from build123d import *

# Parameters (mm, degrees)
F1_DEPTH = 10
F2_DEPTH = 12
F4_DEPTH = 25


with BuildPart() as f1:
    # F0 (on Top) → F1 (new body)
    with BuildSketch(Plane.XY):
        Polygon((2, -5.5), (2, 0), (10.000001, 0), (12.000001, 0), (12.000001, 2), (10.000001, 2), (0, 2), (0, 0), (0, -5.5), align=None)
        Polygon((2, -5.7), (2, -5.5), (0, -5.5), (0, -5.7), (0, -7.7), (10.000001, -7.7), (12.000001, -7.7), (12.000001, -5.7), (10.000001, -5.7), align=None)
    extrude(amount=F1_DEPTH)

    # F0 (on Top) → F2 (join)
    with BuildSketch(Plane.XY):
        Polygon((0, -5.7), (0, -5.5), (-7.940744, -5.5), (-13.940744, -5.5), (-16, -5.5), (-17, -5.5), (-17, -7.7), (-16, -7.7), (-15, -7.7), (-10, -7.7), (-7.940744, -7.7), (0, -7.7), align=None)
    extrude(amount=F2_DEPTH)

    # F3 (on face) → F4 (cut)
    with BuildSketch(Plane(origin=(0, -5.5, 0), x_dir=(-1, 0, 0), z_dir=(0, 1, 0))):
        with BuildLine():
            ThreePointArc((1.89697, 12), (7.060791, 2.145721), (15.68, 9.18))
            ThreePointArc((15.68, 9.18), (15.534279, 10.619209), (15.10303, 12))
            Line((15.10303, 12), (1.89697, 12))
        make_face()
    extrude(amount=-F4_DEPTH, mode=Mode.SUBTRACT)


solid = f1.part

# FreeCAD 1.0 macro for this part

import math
import FreeCAD as App
import Part
import Sketcher

V = App.Vector
Q = App.Units.Quantity

doc = App.newDocument("Part")
body = doc.addObject("PartDesign::Body", "Body")

sketch1 = body.newObject("Sketcher::SketchObject", "Sketch")
sketch1.AttachmentSupport = (doc.getObject("XY_Plane"), [""])
sketch1.MapMode = "FlatFace"
sketch1.addGeometry(Part.LineSegment(V(2, 0, 0), V(12.000001, 0, 0)), False)
sketch1.addGeometry(Part.LineSegment(V(12.000001, 0, 0), V(12.000001, 2, 0)), False)
sketch1.addGeometry(Part.LineSegment(V(12.000001, 2, 0), V(0, 2, 0)), False)
sketch1.addGeometry(Part.LineSegment(V(0, 2, 0), V(0, -7.7, 0)), False)
sketch1.addGeometry(Part.LineSegment(V(0, -7.7, 0), V(12.000001, -7.7, 0)), False)
sketch1.addGeometry(Part.LineSegment(V(12.000001, -7.7, 0), V(12.000001, -5.7, 0)), False)
sketch1.addGeometry(Part.LineSegment(V(12.000001, -5.7, 0), V(2, -5.7, 0)), False)
sketch1.addGeometry(Part.LineSegment(V(2, -5.7, 0), V(2, 0, 0)), False)
sketch1.addConstraint(Sketcher.Constraint("Coincident", 0, 2, 1, 1))
sketch1.addConstraint(Sketcher.Constraint("Coincident", 1, 2, 2, 1))
sketch1.addConstraint(Sketcher.Constraint("Coincident", 2, 2, 3, 1))
sketch1.addConstraint(Sketcher.Constraint("Coincident", 3, 2, 4, 1))
sketch1.addConstraint(Sketcher.Constraint("Coincident", 4, 2, 5, 1))
sketch1.addConstraint(Sketcher.Constraint("Coincident", 5, 2, 6, 1))
sketch1.addConstraint(Sketcher.Constraint("Coincident", 6, 2, 7, 1))
sketch1.addConstraint(Sketcher.Constraint("Coincident", 7, 2, 0, 1))
sketch1.addConstraint(Sketcher.Constraint("Horizontal", 0))
sketch1.addConstraint(Sketcher.Constraint("Vertical", 1))
sketch1.addConstraint(Sketcher.Constraint("Horizontal", 2))
sketch1.addConstraint(Sketcher.Constraint("Vertical", 3))
sketch1.addConstraint(Sketcher.Constraint("Horizontal", 4))
sketch1.addConstraint(Sketcher.Constraint("Vertical", 5))
sketch1.addConstraint(Sketcher.Constraint("Horizontal", 6))
sketch1.addConstraint(Sketcher.Constraint("Vertical", 7))
sketch1.addConstraint(Sketcher.Constraint("PointOnObject", 0, 2, -1))
sketch1.addConstraint(Sketcher.Constraint("PointOnObject", 2, 2, -2))
sketch1.addConstraint(Sketcher.Constraint("Vertical", 1, 2, 4, 2))
sketch1.addConstraint(Sketcher.Constraint("Equal", 1, 5))
sketch1.addConstraint(Sketcher.Constraint("DistanceX", 0, 1, 0, 2, Q("10.000001 mm")))
sketch1.addConstraint(Sketcher.Constraint("DistanceX", 2, 2, 2, 1, Q("12.000001 mm")))
sketch1.addConstraint(Sketcher.Constraint("DistanceY", 1, 1, 1, 2, Q("2 mm")))
sketch1.addConstraint(Sketcher.Constraint("DistanceY", 3, 2, 3, 1, Q("9.7 mm")))
pad1 = body.newObject("PartDesign::Pad", "Pad")
pad1.Profile = sketch1
pad1.Length = 10

sketch2 = body.newObject("Sketcher::SketchObject", "Sketch001")
sketch2.AttachmentSupport = (doc.getObject("XY_Plane"), [""])
sketch2.MapMode = "FlatFace"
sketch2.addGeometry(Part.LineSegment(V(0, -5.5, 0), V(-17, -5.5, 0)), False)
sketch2.addGeometry(Part.LineSegment(V(-17, -5.5, 0), V(-17, -7.7, 0)), False)
sketch2.addGeometry(Part.LineSegment(V(-17, -7.7, 0), V(0, -7.7, 0)), False)
sketch2.addGeometry(Part.LineSegment(V(0, -7.7, 0), V(0, -5.5, 0)), False)
sketch2.addConstraint(Sketcher.Constraint("Coincident", 0, 2, 1, 1))
sketch2.addConstraint(Sketcher.Constraint("Coincident", 1, 2, 2, 1))
sketch2.addConstraint(Sketcher.Constraint("Coincident", 2, 2, 3, 1))
sketch2.addConstraint(Sketcher.Constraint("Coincident", 3, 2, 0, 1))
sketch2.addConstraint(Sketcher.Constraint("Horizontal", 0))
sketch2.addConstraint(Sketcher.Constraint("Vertical", 1))
sketch2.addConstraint(Sketcher.Constraint("Horizontal", 2))
sketch2.addConstraint(Sketcher.Constraint("Vertical", 3))
sketch2.addConstraint(Sketcher.Constraint("PointOnObject", 2, 2, -2))
sketch2.addConstraint(Sketcher.Constraint("DistanceX", 0, 2, 0, 1, Q("17 mm")))
sketch2.addConstraint(Sketcher.Constraint("DistanceY", 1, 2, 1, 1, Q("2.2 mm")))
sketch2.addConstraint(Sketcher.Constraint("DistanceY", 0, 2, -1, 1, Q("5.5 mm")))
pad2 = body.newObject("PartDesign::Pad", "Pad001")
pad2.Profile = sketch2
pad2.Length = 12

sketch3 = body.newObject("Sketcher::SketchObject", "Sketch002")
sketch3.AttachmentSupport = (doc.getObject("XZ_Plane"), [""])
sketch3.MapMode = "FlatFace"
sketch3.AttachmentOffset = App.Placement(V(0, 0, 5.5), App.Rotation())
sketch3.addGeometry(Part.ArcOfCircle(Part.Circle(V(-8.5, 9.18, 0), V(0, 0, 1), 7.18), math.radians(180), math.radians(383.126198)), False)
sketch3.addGeometry(Part.ArcOfCircle(Part.Circle(V(-8.500003, 9.180002, 0), V(0, 0, 1), 7.179997), math.radians(156.873804), math.radians(180.000013)), False)
sketch3.addGeometry(Part.LineSegment(V(-15.10303, 12, 0), V(-1.89697, 12, 0)), False)
sketch3.addConstraint(Sketcher.Constraint("Tangent", 0, 1, 1, 2))
sketch3.addConstraint(Sketcher.Constraint("Coincident", 1, 1, 2, 1))
sketch3.addConstraint(Sketcher.Constraint("Coincident", 2, 2, 0, 2))
sketch3.addConstraint(Sketcher.Constraint("Horizontal", 2))
sketch3.addConstraint(Sketcher.Constraint("Horizontal", 1, 3, 0, 1))
sketch3.addConstraint(Sketcher.Constraint("Radius", 0, Q("7.18 mm")))
sketch3.addConstraint(Sketcher.Constraint("DistanceY", -1, 1, 1, 1, Q("12 mm")))
sketch3.addConstraint(Sketcher.Constraint("DistanceX", 0, 3, -1, 1, Q("8.5 mm")))
sketch3.addConstraint(Sketcher.Constraint("DistanceY", -1, 1, 0, 3, Q("9.18 mm")))
sketch3.addConstraint(Sketcher.Constraint("Radius", 1, Q("7.179997 mm")))
pocket1 = body.newObject("PartDesign::Pocket", "Pocket")
pocket1.Profile = sketch3
pocket1.Length = 25
pocket1.Reversed = True

doc.recompute()
